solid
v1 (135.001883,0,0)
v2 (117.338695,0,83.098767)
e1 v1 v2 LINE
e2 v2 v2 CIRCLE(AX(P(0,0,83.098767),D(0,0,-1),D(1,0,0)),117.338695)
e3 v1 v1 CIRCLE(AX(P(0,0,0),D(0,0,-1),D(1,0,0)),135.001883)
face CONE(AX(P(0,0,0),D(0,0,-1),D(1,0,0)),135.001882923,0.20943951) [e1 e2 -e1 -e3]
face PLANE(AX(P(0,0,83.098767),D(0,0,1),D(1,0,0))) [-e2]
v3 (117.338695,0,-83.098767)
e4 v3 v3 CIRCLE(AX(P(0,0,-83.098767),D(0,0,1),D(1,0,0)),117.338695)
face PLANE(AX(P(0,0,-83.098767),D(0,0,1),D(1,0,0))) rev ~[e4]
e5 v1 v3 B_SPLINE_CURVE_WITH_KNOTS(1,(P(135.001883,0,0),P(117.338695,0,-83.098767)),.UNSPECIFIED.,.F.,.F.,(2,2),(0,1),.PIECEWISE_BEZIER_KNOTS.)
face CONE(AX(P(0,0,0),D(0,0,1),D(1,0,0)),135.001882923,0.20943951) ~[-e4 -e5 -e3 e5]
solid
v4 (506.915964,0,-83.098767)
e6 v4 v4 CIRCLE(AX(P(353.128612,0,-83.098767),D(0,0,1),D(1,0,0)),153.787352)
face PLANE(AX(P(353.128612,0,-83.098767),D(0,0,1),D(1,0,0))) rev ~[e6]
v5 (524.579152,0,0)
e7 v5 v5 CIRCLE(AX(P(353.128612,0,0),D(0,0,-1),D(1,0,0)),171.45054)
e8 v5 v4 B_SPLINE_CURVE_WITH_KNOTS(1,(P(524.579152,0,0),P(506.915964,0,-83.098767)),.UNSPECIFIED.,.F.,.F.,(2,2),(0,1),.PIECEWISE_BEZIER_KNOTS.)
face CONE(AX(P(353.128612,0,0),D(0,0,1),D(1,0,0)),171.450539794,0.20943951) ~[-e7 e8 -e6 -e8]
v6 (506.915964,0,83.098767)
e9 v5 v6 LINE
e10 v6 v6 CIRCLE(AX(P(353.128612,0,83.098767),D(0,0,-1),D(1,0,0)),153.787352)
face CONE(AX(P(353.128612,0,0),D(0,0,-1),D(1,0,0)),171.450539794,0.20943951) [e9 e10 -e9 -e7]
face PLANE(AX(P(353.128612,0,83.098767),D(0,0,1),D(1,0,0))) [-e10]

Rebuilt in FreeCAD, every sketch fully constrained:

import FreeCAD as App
import Part
import Sketcher
from FreeCAD import Vector
Q = App.Units.Quantity

doc = App.newDocument("Part")
body = doc.addObject("PartDesign::Body", "Body")

sketch1 = doc.addObject("Sketcher::SketchObject", "Sketch")
body.addObject(sketch1)
sketch1.AttachmentSupport = (doc.XY_Plane, [""])
sketch1.MapMode = "FlatFace"
sketch1.addGeometry(Part.Circle(Vector(0, 0, 0), Vector(0, 0, 1), 135), False)
sketch1.addConstraint(Sketcher.Constraint("Coincident", 0, 3, -1, 1))
sketch1.addConstraint(Sketcher.Constraint("Diameter", 0, Q("270.003766 mm")))
pad1 = doc.addObject("PartDesign::Pad", "Pad")
body.addObject(pad1)
pad1.Profile = sketch1
pad1.Length = 166.197534
pad1.Midplane = True
pad1.TaperAngle = -12
body2 = doc.addObject("PartDesign::Body", "Body001")

sketch2 = doc.addObject("Sketcher::SketchObject", "Sketch001")
body2.addObject(sketch2)
sketch2.AttachmentSupport = (doc.getObject("XY_Plane001"), [""])
sketch2.MapMode = "FlatFace"
sketch2.addGeometry(Part.Circle(Vector(353, 0, 0), Vector(0, 0, 1), 171), False)
sketch2.addConstraint(Sketcher.Constraint("PointOnObject", 0, 3, -1))
sketch2.addConstraint(Sketcher.Constraint("Diameter", 0, Q("342.90108 mm")))
sketch2.addConstraint(Sketcher.Constraint("DistanceX", -1, 1, 0, 3, Q("353.128612 mm")))
pad2 = doc.addObject("PartDesign::Pad", "Pad001")
body2.addObject(pad2)
pad2.Profile = sketch2
pad2.Length = 166.197534
pad2.Midplane = True
pad2.TaperAngle = -12

doc.recompute()
